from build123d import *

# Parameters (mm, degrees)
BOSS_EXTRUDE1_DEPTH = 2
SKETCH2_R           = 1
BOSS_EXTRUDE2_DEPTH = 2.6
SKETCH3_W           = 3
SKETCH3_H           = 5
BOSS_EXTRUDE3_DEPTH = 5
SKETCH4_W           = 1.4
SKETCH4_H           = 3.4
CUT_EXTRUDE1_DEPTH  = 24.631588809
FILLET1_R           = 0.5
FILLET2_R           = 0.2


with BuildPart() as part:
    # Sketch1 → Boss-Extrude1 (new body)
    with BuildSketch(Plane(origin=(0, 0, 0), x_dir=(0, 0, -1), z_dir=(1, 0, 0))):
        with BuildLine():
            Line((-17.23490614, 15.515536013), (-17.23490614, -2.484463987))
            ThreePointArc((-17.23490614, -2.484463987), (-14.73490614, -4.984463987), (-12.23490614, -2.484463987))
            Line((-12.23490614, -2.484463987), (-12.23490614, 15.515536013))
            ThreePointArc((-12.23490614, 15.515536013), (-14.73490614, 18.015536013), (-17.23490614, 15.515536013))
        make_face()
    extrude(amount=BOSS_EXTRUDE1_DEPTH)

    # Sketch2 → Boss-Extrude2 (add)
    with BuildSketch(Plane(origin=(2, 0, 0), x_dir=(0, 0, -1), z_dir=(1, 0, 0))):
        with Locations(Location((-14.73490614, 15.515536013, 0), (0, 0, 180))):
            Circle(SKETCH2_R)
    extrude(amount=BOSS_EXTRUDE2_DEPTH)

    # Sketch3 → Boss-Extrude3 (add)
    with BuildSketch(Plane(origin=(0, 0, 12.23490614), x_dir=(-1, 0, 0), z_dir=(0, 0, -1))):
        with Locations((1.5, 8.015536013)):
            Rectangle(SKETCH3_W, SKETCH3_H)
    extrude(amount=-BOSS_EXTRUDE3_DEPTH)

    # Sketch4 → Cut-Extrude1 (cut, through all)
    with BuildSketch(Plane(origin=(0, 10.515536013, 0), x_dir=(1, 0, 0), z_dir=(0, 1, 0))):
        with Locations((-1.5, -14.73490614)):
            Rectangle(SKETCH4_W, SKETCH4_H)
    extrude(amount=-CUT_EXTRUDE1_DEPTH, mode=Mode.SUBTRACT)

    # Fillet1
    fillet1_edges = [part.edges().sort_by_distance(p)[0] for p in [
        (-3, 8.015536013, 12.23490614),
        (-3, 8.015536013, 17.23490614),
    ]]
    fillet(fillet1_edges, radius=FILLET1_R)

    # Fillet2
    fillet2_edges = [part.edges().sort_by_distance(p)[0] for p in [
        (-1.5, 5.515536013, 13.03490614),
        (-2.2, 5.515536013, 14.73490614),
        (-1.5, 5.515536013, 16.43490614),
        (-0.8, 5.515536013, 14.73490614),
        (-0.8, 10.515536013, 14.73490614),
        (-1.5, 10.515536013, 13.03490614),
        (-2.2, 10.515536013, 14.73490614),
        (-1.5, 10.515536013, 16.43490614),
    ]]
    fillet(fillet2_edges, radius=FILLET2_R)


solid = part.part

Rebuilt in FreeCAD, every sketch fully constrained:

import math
import FreeCAD as App
import Part
import Sketcher
Q = App.Units.Quantity


def edges_at(feature, points):
    """Names of the edges that pass closest to the given points."""
    edges = feature.Shape.Edges
    near = lambda p: min(range(len(edges)), key=lambda i: edges[i].distToShape(Part.Vertex(*p))[0])
    return sorted({f"Edge{near(p) + 1}" for p in points})


def add_polygon(sketch, points):
    """Adds a closed chain of lines whose ends are joined by coincident constraints."""
    first, n = sketch.GeometryCount, len(points)
    for a, b in zip(points, points[1:] + points[:1]):
        sketch.addGeometry(Part.LineSegment(App.Vector(*a, 0), App.Vector(*b, 0)), False)
    for i in range(n):
        sketch.addConstraint(Sketcher.Constraint("Coincident", first + i, 2, first + (i + 1) % n, 1))

doc = App.newDocument("Part")
body = doc.addObject("PartDesign::Body", "Body")

# Sketch on YZ plane
sketch1 = doc.addObject("Sketcher::SketchObject", "Sketch")
body.addObject(sketch1)
sketch1.AttachmentSupport = (doc.YZ_Plane, [""])
sketch1.MapMode = "FlatFace"
sketch1.addGeometry([
    Part.LineSegment(App.Vector(15.515536, 17.234906, 0), App.Vector(-2.484464, 17.234906, 0)),
    Part.ArcOfCircle(Part.Circle(App.Vector(-2.484464, 14.734906, 0), App.Vector(0, 0, 1), 2.5), math.radians(90), math.radians(270)),
    Part.LineSegment(App.Vector(-2.484464, 12.234906, 0), App.Vector(15.515536, 12.234906, 0)),
    Part.ArcOfCircle(Part.Circle(App.Vector(15.515536, 14.734906, 0), App.Vector(0, 0, 1), 2.5), math.radians(-90), math.radians(90)),
], False)
sketch1.addConstraint([
    Sketcher.Constraint("Tangent", 0, 2, 1, 1),
    Sketcher.Constraint("Tangent", 1, 2, 2, 1),
    Sketcher.Constraint("Tangent", 2, 2, 3, 1),
    Sketcher.Constraint("Tangent", 3, 2, 0, 1),
    Sketcher.Constraint("Horizontal", 0),
    Sketcher.Constraint("Horizontal", 2),
    Sketcher.Constraint("Radius", 1, Q("2.5 mm")),
    Sketcher.Constraint("DistanceX", 0, 2, 0, 1, Q("18 mm")),
    Sketcher.Constraint("DistanceX", 1, 3, -1, 1, Q("2.484464 mm")),
    Sketcher.Constraint("DistanceY", -1, 1, 1, 3, Q("14.734906 mm")),
])
pad1 = doc.addObject("PartDesign::Pad", "Pad")
body.addObject(pad1)
pad1.Profile = sketch1
pad1.Length = 2

# Sketch on YZ plane
sketch2 = doc.addObject("Sketcher::SketchObject", "Sketch001")
body.addObject(sketch2)
sketch2.AttachmentSupport = (doc.YZ_Plane, [""])
sketch2.MapMode = "FlatFace"
sketch2.AttachmentOffset = App.Placement(App.Vector(0, 0, 2), App.Rotation())
sketch2.addGeometry(Part.Circle(App.Vector(15.515536, 14.734906, 0), App.Vector(0, 0, 1), 1), False)
sketch2.addConstraint([
    Sketcher.Constraint("Diameter", 0, Q("2 mm")),
    Sketcher.Constraint("DistanceX", -1, 1, 0, 3, Q("15.515536 mm")),
    Sketcher.Constraint("DistanceY", -1, 1, 0, 3, Q("14.734906 mm")),
])
pad2 = doc.addObject("PartDesign::Pad", "Pad001")
body.addObject(pad2)
pad2.Profile = sketch2
pad2.Length = 2.6

# Sketch on XY plane
sketch3 = doc.addObject("Sketcher::SketchObject", "Sketch002")
body.addObject(sketch3)
sketch3.AttachmentSupport = (doc.XY_Plane, [""])
sketch3.MapMode = "FlatFace"
sketch3.AttachmentOffset = App.Placement(App.Vector(0, 0, 12.234906), App.Rotation())
add_polygon(sketch3, [(0, 10.515536), (0, 5.515536), (-3, 5.515536), (-3, 10.515536)])  # lines 0-3
sketch3.addConstraint([
    Sketcher.Constraint("Vertical", 0),
    Sketcher.Constraint("Horizontal", 1),
    Sketcher.Constraint("Vertical", 2),
    Sketcher.Constraint("Horizontal", 3),
    Sketcher.Constraint("PointOnObject", 0, 2, -2),
    Sketcher.Constraint("DistanceX", 1, 2, 1, 1, Q("3 mm")),
    Sketcher.Constraint("DistanceY", 0, 2, 0, 1, Q("5 mm")),
    Sketcher.Constraint("DistanceY", -1, 1, 0, 2, Q("5.515536 mm")),
])
pad3 = doc.addObject("PartDesign::Pad", "Pad002")
body.addObject(pad3)
pad3.Profile = sketch3
pad3.Length = 5

# Sketch on XZ plane
sketch4 = doc.addObject("Sketcher::SketchObject", "Sketch003")
body.addObject(sketch4)
sketch4.AttachmentSupport = (doc.XZ_Plane, [""])
sketch4.MapMode = "FlatFace"
sketch4.AttachmentOffset = App.Placement(App.Vector(0, 0, -10.515536), App.Rotation())
add_polygon(sketch4, [(-2.2, 13.034906), (-2.2, 16.434906), (-0.8, 16.434906), (-0.8, 13.034906)])  # lines 0-3
sketch4.addConstraint([
    Sketcher.Constraint("Vertical", 0),
    Sketcher.Constraint("Horizontal", 1),
    Sketcher.Constraint("Vertical", 2),
    Sketcher.Constraint("Horizontal", 3),
    Sketcher.Constraint("DistanceX", 1, 1, 1, 2, Q("1.4 mm")),
    Sketcher.Constraint("DistanceY", 0, 1, 0, 2, Q("3.4 mm")),
    Sketcher.Constraint("DistanceX", 0, 2, -1, 1, Q("2.2 mm")),
    Sketcher.Constraint("DistanceY", -1, 1, 0, 2, Q("16.434906 mm")),
])
pocket1 = doc.addObject("PartDesign::Pocket", "Pocket")
body.addObject(pocket1)
pocket1.Profile = sketch4
pocket1.Type = "ThroughAll"
pocket1.Reversed = True
doc.recompute()

fillet = doc.addObject("PartDesign::Fillet", "Fillet")
body.addObject(fillet)
fillet.Base = (pocket1, edges_at(pocket1, [(-3, 8.016, 12.235), (-3, 8.016, 17.235)]))
fillet.Radius = 0.5
doc.recompute()

fillet2 = doc.addObject("PartDesign::Fillet", "Fillet001")
body.addObject(fillet2)
fillet2.Base = (fillet, edges_at(fillet, [
    (-1.5, 5.516, 13.035),
    (-2.2, 5.516, 14.735),
    (-1.5, 5.516, 16.435),
    (-0.8, 5.516, 14.735),
    (-0.8, 10.516, 14.735),
    (-1.5, 10.516, 13.035),
    (-2.2, 10.516, 14.735),
    (-1.5, 10.516, 16.435),
]))
fillet2.Radius = 0.2

doc.recompute()
